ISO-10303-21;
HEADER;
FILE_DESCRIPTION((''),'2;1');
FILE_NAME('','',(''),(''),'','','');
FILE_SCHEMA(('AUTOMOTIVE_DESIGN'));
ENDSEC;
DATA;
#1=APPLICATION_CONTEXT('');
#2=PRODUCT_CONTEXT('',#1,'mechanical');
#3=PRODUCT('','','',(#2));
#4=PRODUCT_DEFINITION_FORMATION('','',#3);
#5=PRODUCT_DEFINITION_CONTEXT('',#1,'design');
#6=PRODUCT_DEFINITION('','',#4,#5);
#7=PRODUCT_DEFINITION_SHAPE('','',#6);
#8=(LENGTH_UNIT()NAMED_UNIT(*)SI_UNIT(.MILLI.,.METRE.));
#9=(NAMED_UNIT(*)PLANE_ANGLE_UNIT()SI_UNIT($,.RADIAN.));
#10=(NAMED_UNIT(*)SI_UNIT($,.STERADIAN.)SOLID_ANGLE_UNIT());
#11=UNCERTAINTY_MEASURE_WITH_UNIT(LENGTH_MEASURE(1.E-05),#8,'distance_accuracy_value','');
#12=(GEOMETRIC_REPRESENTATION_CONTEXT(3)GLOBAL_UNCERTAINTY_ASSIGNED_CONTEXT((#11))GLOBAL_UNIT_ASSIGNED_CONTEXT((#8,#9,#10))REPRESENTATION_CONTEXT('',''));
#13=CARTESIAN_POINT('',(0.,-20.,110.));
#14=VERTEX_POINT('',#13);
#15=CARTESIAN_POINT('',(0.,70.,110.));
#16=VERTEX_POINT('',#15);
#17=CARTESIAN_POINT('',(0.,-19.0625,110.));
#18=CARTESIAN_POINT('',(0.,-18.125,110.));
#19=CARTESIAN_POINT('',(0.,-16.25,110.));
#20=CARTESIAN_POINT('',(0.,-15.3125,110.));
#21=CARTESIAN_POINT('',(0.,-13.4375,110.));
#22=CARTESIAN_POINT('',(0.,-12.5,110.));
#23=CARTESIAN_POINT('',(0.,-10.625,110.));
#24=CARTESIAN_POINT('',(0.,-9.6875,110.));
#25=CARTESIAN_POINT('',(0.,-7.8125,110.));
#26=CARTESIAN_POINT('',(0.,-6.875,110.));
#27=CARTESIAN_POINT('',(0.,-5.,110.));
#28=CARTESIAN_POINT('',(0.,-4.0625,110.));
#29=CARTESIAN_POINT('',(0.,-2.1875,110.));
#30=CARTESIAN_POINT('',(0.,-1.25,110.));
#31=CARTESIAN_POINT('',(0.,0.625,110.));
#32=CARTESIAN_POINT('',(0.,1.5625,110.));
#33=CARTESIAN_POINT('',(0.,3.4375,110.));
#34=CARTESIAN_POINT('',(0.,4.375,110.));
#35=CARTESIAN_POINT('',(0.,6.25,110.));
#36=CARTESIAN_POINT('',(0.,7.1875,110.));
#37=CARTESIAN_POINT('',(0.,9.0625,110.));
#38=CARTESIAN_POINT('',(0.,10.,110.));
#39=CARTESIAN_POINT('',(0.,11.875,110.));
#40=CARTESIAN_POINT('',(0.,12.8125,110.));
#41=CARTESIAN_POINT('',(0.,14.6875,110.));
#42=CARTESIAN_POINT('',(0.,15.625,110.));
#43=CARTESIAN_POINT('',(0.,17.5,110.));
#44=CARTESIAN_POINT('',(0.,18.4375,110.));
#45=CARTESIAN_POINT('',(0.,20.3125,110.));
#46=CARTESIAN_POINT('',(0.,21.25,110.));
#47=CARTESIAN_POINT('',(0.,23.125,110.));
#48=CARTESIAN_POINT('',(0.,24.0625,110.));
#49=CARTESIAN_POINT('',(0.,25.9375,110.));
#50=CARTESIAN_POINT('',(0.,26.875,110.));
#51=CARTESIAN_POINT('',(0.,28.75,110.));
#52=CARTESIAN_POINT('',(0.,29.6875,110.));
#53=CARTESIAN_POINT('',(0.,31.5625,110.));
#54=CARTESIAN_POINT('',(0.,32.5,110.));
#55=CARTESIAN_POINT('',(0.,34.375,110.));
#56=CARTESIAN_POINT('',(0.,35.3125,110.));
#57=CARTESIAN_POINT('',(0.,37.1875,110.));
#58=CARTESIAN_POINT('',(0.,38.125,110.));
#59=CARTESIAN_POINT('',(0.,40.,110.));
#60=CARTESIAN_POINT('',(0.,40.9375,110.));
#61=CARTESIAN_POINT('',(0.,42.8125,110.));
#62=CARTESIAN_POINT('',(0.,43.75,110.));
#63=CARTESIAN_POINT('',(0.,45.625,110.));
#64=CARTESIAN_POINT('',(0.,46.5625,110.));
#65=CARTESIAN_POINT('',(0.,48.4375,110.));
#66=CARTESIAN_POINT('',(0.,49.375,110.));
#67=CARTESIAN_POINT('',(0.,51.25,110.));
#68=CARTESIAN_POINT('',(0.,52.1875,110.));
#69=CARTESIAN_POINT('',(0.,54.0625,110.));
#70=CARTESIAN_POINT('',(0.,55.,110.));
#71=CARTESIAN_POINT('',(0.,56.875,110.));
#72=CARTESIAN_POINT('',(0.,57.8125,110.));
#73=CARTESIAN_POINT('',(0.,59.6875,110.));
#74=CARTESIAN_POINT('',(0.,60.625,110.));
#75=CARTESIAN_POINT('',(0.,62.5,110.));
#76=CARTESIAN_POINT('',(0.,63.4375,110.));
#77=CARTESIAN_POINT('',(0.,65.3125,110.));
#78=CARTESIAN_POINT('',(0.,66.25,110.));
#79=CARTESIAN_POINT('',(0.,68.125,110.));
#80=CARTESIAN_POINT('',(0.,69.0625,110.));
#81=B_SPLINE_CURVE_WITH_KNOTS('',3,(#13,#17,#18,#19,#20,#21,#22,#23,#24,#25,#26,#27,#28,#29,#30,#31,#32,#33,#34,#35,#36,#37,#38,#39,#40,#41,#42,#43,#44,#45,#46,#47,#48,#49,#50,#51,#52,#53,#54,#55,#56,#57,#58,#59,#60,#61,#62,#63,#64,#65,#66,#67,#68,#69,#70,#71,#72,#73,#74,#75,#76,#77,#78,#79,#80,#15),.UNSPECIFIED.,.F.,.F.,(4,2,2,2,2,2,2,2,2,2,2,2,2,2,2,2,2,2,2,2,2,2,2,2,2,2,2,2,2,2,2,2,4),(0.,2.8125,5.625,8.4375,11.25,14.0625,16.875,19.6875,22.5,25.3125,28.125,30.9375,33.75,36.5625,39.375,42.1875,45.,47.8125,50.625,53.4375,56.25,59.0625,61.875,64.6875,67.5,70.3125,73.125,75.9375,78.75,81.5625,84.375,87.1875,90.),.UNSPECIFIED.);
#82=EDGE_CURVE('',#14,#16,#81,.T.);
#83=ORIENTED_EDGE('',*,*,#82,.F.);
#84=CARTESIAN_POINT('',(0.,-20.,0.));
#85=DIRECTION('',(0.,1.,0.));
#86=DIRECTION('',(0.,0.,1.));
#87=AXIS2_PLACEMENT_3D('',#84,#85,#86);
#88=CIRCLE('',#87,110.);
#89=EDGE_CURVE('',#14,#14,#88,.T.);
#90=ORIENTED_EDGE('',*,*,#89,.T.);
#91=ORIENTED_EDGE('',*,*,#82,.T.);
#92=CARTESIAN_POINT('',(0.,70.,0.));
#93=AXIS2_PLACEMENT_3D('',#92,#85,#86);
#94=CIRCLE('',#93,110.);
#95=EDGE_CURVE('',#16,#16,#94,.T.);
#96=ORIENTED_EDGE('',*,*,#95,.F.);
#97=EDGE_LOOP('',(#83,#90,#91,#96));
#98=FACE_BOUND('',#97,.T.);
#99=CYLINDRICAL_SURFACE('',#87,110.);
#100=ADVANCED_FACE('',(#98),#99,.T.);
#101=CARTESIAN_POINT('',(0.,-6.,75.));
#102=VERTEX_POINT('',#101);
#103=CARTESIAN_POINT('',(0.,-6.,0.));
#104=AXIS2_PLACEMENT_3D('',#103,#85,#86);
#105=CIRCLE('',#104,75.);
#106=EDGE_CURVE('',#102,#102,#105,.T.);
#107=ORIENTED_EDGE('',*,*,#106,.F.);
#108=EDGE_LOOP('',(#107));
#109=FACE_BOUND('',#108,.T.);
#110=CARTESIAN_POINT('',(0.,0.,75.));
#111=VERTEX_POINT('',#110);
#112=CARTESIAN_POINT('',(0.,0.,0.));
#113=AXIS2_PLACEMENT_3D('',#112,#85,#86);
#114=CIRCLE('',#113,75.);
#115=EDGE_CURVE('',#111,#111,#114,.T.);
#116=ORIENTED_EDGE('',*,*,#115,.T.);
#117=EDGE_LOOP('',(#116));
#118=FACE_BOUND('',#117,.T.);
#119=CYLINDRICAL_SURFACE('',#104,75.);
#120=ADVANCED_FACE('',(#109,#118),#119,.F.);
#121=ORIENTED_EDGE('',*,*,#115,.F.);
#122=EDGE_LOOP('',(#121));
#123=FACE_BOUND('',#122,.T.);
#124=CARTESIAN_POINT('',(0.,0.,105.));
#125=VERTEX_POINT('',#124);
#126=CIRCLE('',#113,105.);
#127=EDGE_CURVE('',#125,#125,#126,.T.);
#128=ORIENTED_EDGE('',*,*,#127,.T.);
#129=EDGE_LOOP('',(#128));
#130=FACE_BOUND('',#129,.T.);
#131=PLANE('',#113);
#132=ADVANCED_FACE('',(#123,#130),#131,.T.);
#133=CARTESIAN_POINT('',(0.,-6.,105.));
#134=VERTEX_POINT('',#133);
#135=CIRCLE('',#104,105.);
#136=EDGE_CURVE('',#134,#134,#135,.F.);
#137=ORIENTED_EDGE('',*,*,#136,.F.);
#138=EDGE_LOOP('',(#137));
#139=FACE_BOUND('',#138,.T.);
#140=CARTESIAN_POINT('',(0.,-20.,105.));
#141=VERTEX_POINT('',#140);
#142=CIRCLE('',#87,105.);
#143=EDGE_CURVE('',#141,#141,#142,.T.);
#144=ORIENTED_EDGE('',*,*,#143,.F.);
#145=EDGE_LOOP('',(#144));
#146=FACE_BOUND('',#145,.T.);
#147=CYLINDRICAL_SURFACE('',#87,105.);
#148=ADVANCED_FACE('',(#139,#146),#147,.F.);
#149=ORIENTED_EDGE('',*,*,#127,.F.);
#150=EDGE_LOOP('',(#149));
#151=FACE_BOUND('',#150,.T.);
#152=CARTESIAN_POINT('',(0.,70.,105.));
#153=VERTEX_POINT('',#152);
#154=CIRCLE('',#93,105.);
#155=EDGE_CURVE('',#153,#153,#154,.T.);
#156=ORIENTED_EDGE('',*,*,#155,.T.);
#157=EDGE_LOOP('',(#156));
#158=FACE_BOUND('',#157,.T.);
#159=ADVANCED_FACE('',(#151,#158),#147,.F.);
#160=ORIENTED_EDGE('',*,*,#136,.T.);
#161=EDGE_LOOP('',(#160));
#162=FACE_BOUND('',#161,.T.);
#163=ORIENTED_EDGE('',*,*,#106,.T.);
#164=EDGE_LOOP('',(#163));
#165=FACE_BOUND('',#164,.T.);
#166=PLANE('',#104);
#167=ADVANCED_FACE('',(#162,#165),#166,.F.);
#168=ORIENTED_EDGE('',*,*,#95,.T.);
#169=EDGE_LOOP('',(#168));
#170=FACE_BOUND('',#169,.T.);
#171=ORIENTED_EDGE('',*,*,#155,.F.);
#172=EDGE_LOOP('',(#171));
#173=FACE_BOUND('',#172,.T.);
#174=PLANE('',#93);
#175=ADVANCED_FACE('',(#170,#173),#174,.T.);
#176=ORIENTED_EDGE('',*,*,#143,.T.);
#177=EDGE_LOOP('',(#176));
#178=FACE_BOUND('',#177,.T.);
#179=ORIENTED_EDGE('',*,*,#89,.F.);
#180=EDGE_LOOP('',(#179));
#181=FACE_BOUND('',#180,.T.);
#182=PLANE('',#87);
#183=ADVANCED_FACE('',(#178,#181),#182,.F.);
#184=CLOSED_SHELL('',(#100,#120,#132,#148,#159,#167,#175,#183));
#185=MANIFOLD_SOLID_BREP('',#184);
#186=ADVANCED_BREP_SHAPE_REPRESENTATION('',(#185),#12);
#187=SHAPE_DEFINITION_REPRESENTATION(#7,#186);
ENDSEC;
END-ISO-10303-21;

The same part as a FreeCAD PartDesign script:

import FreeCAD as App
import Part
import Sketcher

V = App.Vector

doc = App.newDocument("Part")
params = doc.addObject("Spreadsheet::Sheet", "Params")
for row, (alias, value) in enumerate([
    ("sketch1_diameter", "240 mm"),
    ("sketch1_diameter2", "210 mm"),
    ("pad1_length", "70 mm"),
    ("pad1_length2", "20 mm"),
    ("sketch2_diameter", "210 mm"),
    ("sketch2_diameter2", "150 mm"),
    ("pad2_length", "6 mm"),
    ("sketch3_diameter", "240 mm"),
    ("sketch3_diameter2", "230 mm"),
    ("sketch4_diameter", "240 mm"),
    ("sketch4_diameter2", "220 mm"),
], start=1):
    params.set(f"A{row}", alias)
    params.set(f"B{row}", "=" + value)
    params.setAlias(f"B{row}", alias)

body = doc.addObject("PartDesign::Body", "Body")

# Sketch on XZ plane
sketch1 = body.newObject("Sketcher::SketchObject", "Sketch")
sketch1.AttachmentSupport = (doc.getObject("XZ_Plane"), [""])
sketch1.MapMode = "FlatFace"
sketch1.addGeometry([
    Part.Circle(V(0, 0, 0), V(0, 0, 1), 120),
    Part.Circle(V(0, 0, 0), V(0, 0, 1), 105),
], False)
sketch1.addConstraint([
    Sketcher.Constraint("Coincident", 0, 3, -1, 1),
    Sketcher.Constraint("Coincident", 1, 3, -1, 1),
    Sketcher.Constraint("Diameter", 0, 240.0),
    Sketcher.Constraint("Diameter", 1, 210.0),
])
sketch1.setExpression("Constraints[2]", "Params.sketch1_diameter")
sketch1.setExpression("Constraints[3]", "Params.sketch1_diameter2")
pad1 = body.newObject("PartDesign::Pad", "Pad")
pad1.Profile = sketch1
pad1.Type = "TwoLengths"
pad1.setExpression("Length", "Params.pad1_length")
pad1.setExpression("Length2", "Params.pad1_length2")
pad1.Reversed = True

# Sketch on XZ plane
sketch2 = body.newObject("Sketcher::SketchObject", "Sketch001")
sketch2.AttachmentSupport = (doc.getObject("XZ_Plane"), [""])
sketch2.MapMode = "FlatFace"
sketch2.addGeometry([
    Part.Circle(V(0, 0, 0), V(0, 0, 1), 105),
    Part.Circle(V(0, 0, 0), V(0, 0, 1), 75),
], False)
sketch2.addConstraint([
    Sketcher.Constraint("Coincident", 0, 3, -1, 1),
    Sketcher.Constraint("Coincident", 1, 3, -1, 1),
    Sketcher.Constraint("Diameter", 0, 210.0),
    Sketcher.Constraint("Diameter", 1, 150.0),
])
sketch2.setExpression("Constraints[2]", "Params.sketch2_diameter")
sketch2.setExpression("Constraints[3]", "Params.sketch2_diameter2")
pad2 = body.newObject("PartDesign::Pad", "Pad001")
pad2.Profile = sketch2
pad2.setExpression("Length", "Params.pad2_length")

# Sketch on XZ plane
sketch3 = body.newObject("Sketcher::SketchObject", "Sketch002")
sketch3.AttachmentSupport = (doc.getObject("XZ_Plane"), [""])
sketch3.MapMode = "FlatFace"
sketch3.AttachmentOffset = App.Placement(V(0, 0, -70), App.Rotation())
sketch3.addGeometry([
    Part.Circle(V(0, 0, 0), V(0, 0, 1), 120),
    Part.Circle(V(0, 0, 0), V(0, 0, 1), 115),
], False)
sketch3.addConstraint([
    Sketcher.Constraint("Coincident", 0, 3, -1, 1),
    Sketcher.Constraint("Coincident", 1, 3, -1, 1),
    Sketcher.Constraint("Diameter", 0, 240.0),
    Sketcher.Constraint("Diameter", 1, 230.0),
])
sketch3.setExpression("Constraints[2]", "Params.sketch3_diameter")
sketch3.setExpression("Constraints[3]", "Params.sketch3_diameter2")
pocket1 = body.newObject("PartDesign::Pocket", "Pocket")
pocket1.Profile = sketch3
pocket1.Type = "ThroughAll"
pocket1.Reversed = True

# Sketch on XZ plane
sketch4 = body.newObject("Sketcher::SketchObject", "Sketch003")
sketch4.AttachmentSupport = (doc.getObject("XZ_Plane"), [""])
sketch4.MapMode = "FlatFace"
sketch4.AttachmentOffset = App.Placement(V(0, 0, -70), App.Rotation())
sketch4.addGeometry([
    Part.Circle(V(0, 0, 0), V(0, 0, 1), 120),
    Part.Circle(V(0, 0, 0), V(0, 0, 1), 110),
], False)
sketch4.addConstraint([
    Sketcher.Constraint("Coincident", 0, 3, -1, 1),
    Sketcher.Constraint("Coincident", 1, 3, -1, 1),
    Sketcher.Constraint("Diameter", 0, 240.0),
    Sketcher.Constraint("Diameter", 1, 220.0),
])
sketch4.setExpression("Constraints[2]", "Params.sketch4_diameter")
sketch4.setExpression("Constraints[3]", "Params.sketch4_diameter2")
pocket2 = body.newObject("PartDesign::Pocket", "Pocket001")
pocket2.Profile = sketch4
pocket2.Type = "ThroughAll"
pocket2.Reversed = True

doc.recompute()
